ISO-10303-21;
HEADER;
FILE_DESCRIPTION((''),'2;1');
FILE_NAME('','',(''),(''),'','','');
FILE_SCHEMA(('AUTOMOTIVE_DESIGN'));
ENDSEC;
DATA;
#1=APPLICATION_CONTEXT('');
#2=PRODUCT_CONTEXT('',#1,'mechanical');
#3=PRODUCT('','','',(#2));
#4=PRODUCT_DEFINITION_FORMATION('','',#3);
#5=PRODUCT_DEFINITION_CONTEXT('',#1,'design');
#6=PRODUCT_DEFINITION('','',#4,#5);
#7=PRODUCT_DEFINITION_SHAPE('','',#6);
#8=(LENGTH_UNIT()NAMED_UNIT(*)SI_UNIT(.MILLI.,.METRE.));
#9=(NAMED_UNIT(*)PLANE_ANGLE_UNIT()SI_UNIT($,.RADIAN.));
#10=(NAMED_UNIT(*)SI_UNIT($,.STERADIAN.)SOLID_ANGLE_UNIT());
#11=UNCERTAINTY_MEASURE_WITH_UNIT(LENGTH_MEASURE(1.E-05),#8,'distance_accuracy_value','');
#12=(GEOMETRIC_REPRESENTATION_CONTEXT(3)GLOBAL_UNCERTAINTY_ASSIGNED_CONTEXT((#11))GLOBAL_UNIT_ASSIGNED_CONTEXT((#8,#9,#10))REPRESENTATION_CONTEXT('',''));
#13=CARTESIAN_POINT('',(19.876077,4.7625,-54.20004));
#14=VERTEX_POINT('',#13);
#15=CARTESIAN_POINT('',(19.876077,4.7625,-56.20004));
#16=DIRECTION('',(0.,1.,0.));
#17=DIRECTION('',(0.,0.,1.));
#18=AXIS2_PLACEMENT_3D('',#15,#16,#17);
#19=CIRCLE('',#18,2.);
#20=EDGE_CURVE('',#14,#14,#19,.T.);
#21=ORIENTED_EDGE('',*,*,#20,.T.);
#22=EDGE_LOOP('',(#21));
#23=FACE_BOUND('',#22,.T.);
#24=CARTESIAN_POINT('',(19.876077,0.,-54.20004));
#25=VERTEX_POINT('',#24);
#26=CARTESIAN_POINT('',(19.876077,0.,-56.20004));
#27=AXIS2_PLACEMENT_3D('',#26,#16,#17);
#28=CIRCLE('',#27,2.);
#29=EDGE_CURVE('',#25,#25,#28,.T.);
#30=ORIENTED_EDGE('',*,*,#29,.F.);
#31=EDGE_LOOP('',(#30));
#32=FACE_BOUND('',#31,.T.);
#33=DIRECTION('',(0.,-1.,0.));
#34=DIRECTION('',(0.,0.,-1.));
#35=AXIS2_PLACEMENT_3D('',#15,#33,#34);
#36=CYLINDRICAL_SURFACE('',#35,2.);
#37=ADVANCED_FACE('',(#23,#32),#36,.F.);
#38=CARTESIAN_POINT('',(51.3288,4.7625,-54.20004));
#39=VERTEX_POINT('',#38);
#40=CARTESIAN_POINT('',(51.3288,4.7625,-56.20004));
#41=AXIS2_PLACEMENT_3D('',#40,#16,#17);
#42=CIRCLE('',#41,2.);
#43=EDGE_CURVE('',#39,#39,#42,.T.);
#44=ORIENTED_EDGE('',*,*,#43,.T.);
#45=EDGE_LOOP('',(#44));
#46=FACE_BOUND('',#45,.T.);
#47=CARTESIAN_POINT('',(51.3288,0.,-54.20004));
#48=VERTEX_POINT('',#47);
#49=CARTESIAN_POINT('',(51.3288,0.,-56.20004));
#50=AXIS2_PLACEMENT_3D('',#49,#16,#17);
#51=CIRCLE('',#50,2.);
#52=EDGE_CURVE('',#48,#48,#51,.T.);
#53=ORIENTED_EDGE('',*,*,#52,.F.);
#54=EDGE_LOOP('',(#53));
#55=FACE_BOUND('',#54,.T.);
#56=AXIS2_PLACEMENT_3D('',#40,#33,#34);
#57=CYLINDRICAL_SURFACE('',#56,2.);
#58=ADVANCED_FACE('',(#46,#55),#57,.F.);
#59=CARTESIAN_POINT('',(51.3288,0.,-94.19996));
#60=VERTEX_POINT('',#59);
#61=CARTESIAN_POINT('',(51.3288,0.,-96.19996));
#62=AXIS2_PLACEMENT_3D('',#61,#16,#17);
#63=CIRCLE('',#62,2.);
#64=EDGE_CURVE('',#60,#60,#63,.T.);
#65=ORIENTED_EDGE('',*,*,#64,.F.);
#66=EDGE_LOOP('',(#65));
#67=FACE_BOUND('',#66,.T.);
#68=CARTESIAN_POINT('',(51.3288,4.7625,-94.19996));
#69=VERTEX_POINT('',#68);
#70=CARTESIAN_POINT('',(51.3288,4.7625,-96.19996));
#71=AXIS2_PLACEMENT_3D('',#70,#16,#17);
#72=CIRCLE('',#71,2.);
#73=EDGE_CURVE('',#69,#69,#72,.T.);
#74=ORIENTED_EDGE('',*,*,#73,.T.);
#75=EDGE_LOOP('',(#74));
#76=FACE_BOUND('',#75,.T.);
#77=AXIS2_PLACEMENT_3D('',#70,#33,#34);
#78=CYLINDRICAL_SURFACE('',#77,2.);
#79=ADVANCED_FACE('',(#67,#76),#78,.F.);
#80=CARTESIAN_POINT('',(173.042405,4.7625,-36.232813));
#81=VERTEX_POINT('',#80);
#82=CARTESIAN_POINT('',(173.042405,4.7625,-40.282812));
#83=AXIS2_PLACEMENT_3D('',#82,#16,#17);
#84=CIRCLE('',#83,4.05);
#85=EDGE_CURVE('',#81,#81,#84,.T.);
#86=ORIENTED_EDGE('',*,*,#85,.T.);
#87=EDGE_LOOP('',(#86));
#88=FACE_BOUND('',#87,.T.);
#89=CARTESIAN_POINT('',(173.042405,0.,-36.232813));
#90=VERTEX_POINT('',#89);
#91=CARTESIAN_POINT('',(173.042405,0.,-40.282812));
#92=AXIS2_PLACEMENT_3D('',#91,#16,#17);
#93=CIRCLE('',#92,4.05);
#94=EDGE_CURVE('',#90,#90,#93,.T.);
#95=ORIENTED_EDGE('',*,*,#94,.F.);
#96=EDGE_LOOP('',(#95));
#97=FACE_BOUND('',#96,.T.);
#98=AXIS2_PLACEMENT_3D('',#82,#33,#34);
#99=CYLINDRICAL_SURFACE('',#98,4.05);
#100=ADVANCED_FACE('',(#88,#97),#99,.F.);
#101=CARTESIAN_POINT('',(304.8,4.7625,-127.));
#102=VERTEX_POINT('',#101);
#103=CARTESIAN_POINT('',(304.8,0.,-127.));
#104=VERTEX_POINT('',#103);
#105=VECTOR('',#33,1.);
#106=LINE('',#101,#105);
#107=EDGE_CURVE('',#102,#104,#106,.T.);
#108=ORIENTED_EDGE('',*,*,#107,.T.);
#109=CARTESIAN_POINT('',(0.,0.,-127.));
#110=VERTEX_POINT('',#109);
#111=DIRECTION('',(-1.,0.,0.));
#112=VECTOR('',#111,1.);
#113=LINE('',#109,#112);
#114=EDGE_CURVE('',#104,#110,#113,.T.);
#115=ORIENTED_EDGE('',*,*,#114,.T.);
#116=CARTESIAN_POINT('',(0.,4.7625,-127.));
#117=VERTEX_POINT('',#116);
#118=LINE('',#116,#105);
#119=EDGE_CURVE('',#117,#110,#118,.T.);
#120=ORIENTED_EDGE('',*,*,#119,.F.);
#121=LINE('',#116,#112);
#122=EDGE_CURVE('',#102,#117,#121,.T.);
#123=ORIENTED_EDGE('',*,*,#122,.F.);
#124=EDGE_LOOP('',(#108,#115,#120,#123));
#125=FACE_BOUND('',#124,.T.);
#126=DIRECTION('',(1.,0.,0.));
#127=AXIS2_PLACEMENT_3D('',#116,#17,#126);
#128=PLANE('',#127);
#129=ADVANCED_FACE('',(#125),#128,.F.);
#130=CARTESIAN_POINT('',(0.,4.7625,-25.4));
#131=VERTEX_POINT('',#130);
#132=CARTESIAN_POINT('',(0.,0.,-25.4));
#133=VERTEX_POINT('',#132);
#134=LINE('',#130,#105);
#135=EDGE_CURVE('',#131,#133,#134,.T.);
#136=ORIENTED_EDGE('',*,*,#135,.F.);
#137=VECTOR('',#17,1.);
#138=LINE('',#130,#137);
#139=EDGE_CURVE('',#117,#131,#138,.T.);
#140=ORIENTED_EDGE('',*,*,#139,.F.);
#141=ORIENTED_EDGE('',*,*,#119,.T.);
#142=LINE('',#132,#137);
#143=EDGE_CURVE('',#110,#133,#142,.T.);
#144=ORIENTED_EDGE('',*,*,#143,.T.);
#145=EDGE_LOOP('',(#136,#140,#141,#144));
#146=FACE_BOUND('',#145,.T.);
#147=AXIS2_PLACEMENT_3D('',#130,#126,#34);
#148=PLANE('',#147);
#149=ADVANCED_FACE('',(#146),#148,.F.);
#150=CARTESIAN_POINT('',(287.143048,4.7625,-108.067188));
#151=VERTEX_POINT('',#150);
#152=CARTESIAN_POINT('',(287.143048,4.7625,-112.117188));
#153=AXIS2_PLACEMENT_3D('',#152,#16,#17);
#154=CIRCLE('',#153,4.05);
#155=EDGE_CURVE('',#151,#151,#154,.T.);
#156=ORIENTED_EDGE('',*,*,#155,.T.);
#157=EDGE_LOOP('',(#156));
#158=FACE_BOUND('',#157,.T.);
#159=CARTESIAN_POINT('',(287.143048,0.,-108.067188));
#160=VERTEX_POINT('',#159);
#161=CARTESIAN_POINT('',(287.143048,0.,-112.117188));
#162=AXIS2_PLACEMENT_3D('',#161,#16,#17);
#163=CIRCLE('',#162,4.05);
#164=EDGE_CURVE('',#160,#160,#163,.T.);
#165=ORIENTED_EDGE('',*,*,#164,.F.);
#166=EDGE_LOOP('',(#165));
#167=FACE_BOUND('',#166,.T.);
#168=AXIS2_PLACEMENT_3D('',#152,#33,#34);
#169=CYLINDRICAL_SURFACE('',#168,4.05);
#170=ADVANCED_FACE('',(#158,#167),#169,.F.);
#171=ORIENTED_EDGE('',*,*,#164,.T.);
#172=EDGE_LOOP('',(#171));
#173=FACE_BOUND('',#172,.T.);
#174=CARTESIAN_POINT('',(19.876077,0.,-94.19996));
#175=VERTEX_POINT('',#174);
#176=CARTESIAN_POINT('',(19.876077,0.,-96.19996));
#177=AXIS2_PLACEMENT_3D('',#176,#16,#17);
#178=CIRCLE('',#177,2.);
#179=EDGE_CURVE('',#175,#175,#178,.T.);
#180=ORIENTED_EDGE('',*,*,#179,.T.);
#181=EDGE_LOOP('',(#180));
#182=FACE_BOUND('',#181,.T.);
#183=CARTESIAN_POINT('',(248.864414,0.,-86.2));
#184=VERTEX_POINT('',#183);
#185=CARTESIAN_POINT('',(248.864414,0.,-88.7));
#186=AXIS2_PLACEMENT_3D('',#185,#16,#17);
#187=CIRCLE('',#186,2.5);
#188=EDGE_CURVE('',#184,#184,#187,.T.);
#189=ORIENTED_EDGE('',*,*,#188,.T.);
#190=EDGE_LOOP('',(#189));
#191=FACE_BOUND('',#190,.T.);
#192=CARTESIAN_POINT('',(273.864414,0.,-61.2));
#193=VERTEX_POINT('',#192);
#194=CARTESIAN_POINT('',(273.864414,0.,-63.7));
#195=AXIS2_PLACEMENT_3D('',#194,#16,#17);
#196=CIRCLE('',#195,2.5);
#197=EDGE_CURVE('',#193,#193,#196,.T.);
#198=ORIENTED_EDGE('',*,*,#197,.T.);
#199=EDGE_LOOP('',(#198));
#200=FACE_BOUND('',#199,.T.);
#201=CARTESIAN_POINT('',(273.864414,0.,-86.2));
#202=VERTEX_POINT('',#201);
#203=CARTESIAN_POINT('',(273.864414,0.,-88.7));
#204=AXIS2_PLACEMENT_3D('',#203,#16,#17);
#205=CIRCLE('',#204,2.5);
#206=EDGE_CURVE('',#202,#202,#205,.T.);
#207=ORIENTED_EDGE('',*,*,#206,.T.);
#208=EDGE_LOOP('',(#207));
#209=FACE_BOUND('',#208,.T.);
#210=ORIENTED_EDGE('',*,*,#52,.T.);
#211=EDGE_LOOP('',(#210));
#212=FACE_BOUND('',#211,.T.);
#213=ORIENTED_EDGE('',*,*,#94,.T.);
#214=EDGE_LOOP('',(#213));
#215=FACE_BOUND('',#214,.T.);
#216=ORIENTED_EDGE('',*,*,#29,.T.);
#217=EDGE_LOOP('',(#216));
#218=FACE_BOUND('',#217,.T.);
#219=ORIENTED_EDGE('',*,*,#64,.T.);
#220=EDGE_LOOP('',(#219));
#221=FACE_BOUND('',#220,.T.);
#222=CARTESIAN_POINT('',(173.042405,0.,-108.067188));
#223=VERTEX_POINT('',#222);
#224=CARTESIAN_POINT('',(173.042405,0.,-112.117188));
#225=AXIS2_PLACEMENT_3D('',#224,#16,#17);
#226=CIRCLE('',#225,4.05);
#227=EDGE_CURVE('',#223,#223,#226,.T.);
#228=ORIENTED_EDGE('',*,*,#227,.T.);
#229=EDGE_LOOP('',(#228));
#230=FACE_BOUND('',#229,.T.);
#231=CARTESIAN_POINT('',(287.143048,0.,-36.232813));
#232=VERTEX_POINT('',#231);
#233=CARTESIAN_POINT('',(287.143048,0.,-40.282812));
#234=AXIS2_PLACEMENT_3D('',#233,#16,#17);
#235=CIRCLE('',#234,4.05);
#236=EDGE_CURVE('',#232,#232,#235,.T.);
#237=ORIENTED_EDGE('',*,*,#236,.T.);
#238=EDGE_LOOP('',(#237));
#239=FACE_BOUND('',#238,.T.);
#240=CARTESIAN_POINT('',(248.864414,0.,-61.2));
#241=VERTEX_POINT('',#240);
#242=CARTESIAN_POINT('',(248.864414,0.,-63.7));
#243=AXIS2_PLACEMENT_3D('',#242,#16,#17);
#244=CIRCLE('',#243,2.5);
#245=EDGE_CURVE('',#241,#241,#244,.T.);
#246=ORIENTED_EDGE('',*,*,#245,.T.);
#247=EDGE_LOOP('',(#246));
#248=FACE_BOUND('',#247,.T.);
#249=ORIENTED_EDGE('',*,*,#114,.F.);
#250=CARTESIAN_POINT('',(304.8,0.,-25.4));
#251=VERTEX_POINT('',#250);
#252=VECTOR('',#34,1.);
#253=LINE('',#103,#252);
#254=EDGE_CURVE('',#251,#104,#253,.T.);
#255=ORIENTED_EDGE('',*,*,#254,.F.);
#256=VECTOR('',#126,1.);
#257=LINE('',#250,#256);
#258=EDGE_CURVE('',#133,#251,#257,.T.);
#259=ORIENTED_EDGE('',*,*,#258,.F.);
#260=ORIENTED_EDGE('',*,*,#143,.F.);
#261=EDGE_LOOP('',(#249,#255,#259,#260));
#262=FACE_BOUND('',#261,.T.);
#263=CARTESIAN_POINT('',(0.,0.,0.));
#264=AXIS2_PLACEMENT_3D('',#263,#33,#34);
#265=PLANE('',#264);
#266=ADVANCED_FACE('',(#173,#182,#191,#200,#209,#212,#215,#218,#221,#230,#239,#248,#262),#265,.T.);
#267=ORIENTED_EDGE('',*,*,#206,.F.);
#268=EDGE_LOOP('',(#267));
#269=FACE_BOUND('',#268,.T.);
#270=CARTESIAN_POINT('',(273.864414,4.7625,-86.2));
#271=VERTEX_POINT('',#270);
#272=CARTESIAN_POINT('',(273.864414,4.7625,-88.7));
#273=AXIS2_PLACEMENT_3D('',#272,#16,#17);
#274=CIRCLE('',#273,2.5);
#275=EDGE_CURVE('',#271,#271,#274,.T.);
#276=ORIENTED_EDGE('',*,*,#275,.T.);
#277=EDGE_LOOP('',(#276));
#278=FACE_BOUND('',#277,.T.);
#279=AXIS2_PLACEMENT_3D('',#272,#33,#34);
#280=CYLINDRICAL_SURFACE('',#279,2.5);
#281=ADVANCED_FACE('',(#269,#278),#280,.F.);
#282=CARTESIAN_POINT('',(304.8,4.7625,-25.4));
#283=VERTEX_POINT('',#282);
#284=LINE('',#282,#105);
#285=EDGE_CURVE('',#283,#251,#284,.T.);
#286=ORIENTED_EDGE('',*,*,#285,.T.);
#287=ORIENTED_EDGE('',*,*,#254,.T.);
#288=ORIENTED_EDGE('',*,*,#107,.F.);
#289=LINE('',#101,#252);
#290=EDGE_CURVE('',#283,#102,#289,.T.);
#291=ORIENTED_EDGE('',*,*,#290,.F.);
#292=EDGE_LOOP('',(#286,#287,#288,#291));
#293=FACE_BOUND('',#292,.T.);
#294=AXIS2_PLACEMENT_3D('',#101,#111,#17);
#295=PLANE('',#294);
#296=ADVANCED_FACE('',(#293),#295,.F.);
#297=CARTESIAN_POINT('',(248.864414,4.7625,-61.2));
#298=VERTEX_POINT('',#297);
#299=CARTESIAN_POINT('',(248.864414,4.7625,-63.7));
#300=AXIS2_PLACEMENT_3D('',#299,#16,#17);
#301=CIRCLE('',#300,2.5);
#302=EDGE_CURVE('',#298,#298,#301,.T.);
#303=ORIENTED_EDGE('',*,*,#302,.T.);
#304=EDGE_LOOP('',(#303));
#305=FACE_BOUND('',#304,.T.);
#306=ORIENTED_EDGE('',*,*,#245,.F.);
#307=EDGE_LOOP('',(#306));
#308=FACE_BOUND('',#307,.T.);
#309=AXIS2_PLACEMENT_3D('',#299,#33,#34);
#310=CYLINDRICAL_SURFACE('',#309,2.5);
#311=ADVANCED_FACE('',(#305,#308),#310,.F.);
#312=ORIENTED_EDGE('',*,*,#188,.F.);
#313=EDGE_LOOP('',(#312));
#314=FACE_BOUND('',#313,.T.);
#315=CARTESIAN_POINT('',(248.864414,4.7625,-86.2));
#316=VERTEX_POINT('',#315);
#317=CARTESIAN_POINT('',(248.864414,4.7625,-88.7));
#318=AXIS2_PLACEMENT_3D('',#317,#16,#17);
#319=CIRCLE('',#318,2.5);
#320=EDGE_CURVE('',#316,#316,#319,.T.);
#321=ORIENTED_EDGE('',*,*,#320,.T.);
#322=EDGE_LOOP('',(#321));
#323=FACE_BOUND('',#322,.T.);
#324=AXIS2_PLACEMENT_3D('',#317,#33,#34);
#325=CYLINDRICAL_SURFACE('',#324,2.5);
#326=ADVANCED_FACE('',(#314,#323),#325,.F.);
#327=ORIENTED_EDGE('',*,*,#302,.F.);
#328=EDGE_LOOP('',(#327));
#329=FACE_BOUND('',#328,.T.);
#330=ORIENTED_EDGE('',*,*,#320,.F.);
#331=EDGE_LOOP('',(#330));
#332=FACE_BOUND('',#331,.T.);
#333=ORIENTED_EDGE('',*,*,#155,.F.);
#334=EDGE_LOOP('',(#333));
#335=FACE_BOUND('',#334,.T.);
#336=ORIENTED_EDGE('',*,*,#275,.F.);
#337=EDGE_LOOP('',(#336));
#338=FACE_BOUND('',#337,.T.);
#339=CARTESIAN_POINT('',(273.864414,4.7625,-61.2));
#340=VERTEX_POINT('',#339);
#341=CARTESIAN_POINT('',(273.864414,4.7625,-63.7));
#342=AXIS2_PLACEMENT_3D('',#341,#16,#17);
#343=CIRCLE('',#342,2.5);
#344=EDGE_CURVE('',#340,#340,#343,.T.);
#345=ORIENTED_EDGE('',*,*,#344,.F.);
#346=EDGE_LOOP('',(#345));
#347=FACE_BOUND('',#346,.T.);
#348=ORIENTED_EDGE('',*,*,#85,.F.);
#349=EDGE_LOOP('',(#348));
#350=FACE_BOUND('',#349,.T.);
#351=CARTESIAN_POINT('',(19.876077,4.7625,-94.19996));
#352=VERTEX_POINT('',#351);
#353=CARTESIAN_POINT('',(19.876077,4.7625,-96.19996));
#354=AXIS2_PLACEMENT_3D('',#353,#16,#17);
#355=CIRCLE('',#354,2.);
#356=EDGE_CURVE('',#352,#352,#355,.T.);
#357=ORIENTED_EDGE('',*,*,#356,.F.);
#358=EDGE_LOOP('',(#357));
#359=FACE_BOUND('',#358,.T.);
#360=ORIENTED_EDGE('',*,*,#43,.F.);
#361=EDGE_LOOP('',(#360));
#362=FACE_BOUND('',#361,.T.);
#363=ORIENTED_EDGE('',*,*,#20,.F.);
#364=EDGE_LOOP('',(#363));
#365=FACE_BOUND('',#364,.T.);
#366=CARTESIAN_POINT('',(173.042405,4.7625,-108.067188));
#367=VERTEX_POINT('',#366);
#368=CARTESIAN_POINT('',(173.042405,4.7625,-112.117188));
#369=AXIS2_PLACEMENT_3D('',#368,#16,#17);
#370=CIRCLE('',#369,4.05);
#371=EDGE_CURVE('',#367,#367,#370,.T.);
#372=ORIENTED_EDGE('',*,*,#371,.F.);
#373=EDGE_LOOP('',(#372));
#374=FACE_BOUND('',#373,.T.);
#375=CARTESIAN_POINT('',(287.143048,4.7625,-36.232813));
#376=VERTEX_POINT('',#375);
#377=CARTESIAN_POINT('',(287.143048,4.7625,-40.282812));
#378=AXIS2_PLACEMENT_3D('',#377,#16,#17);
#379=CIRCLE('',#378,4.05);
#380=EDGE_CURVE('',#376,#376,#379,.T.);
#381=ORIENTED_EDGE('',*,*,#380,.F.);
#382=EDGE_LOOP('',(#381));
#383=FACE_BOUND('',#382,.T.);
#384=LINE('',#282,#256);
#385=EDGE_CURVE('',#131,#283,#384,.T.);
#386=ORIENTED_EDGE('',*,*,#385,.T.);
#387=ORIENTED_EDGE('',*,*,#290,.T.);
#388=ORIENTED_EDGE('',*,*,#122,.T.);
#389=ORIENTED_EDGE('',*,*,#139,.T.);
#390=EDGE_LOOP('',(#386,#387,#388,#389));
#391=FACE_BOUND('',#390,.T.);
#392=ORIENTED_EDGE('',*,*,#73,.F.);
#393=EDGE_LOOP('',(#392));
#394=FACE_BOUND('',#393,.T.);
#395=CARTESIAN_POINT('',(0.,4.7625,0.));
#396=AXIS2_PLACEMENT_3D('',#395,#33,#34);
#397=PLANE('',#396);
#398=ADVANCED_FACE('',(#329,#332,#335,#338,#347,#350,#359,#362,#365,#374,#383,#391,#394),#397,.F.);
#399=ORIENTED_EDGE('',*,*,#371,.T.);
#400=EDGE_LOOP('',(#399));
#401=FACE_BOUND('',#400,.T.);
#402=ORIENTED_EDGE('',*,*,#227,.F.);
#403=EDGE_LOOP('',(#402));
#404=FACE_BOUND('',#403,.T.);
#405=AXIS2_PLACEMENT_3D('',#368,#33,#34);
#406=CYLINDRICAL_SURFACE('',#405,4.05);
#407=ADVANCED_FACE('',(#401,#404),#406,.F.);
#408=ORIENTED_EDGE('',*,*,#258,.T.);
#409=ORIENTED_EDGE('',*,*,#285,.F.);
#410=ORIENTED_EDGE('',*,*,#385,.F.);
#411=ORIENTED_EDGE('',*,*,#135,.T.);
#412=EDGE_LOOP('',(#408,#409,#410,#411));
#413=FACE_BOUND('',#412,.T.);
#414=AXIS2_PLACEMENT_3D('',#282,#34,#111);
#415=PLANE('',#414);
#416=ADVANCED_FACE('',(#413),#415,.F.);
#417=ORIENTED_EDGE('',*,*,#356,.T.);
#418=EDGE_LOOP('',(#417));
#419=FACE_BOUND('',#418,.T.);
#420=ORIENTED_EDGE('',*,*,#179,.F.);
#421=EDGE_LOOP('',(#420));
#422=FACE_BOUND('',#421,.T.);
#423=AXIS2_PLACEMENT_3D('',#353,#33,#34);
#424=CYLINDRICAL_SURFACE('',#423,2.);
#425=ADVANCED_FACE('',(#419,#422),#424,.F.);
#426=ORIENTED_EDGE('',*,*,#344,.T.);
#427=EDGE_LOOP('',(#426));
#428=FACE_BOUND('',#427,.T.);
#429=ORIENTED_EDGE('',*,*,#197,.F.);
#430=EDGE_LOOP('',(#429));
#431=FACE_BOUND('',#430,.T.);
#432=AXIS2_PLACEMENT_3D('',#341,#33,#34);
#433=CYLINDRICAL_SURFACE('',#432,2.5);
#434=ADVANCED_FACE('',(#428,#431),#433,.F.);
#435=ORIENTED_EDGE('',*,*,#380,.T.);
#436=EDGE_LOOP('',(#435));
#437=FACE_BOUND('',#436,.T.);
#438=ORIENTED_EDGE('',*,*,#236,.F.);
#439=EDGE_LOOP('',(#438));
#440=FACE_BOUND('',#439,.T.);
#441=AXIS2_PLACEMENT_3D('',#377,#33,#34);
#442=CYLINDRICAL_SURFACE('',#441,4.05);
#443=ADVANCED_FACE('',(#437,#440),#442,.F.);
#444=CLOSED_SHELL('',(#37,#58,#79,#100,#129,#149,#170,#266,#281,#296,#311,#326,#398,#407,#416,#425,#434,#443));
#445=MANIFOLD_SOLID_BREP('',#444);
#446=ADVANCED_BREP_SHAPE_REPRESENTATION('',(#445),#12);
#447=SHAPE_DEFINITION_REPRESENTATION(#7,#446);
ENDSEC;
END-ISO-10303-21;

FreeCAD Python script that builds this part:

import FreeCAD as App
import Part
import Sketcher
from FreeCAD import Vector


def add_polygon(sketch, points):
    """Adds a closed chain of lines whose ends are joined by coincident constraints."""
    first, n = sketch.GeometryCount, len(points)
    for a, b in zip(points, points[1:] + points[:1]):
        sketch.addGeometry(Part.LineSegment(App.Vector(*a, 0), App.Vector(*b, 0)), False)
    for i in range(n):
        sketch.addConstraint(Sketcher.Constraint("Coincident", first + i, 2, first + (i + 1) % n, 1))

doc = App.newDocument("Part")
body = doc.addObject("PartDesign::Body", "Body")

# Sketch on XZ plane
sketch1 = body.newObject("Sketcher::SketchObject", "Sketch")
sketch1.AttachmentSupport = (doc.getObject("XZ_Plane"), [""])
sketch1.MapMode = "FlatFace"
add_polygon(sketch1, [(0, -127), (0, -25.4), (304.8, -25.4), (304.8, -127)])  # lines 0-3
sketch1.addGeometry(Part.Circle(Vector(19.9, -56.2, 0), Vector(0, 0, 1), 2), False)  # 4
sketch1.addGeometry(Part.Circle(Vector(51.3, -56.2, 0), Vector(0, 0, 1), 2), False)  # 5
sketch1.addGeometry(Part.Circle(Vector(173, -40.3, 0), Vector(0, 0, 1), 4), False)  # 6
sketch1.addGeometry(Part.Circle(Vector(287.1, -40.3, 0), Vector(0, 0, 1), 4), False)  # 7
sketch1.addGeometry(Part.Circle(Vector(248.9, -63.7, 0), Vector(0, 0, 1), 2.5), False)  # 8
sketch1.addGeometry(Part.Circle(Vector(273.9, -63.7, 0), Vector(0, 0, 1), 2.5), False)  # 9
sketch1.addGeometry(Part.Circle(Vector(19.9, -96.2, 0), Vector(0, 0, 1), 2), False)  # 10
sketch1.addGeometry(Part.Circle(Vector(51.3, -96.2, 0), Vector(0, 0, 1), 2), False)  # 11
sketch1.addGeometry(Part.Circle(Vector(248.9, -88.7, 0), Vector(0, 0, 1), 2.5), False)  # 12
sketch1.addGeometry(Part.Circle(Vector(273.9, -88.7, 0), Vector(0, 0, 1), 2.5), False)  # 13
sketch1.addGeometry(Part.Circle(Vector(173, -112.1, 0), Vector(0, 0, 1), 4), False)  # 14
sketch1.addGeometry(Part.Circle(Vector(287.1, -112.1, 0), Vector(0, 0, 1), 4), False)  # 15
sketch1.addConstraint([
    Sketcher.Constraint("Vertical", 0),
    Sketcher.Constraint("Horizontal", 1),
    Sketcher.Constraint("Vertical", 2),
    Sketcher.Constraint("Horizontal", 3),
    Sketcher.Constraint("Equal", 4, 5),
    Sketcher.Constraint("Equal", 6, 7),
    Sketcher.Constraint("Equal", 8, 9),
    Sketcher.Constraint("Equal", 5, 10),
    Sketcher.Constraint("Equal", 10, 11),
    Sketcher.Constraint("Equal", 9, 12),
    Sketcher.Constraint("Equal", 12, 13),
    Sketcher.Constraint("Equal", 7, 14),
    Sketcher.Constraint("Equal", 14, 15),
    Sketcher.Constraint("PointOnObject", 0, 2, -2),
    Sketcher.Constraint("Horizontal", 4, 3, 5, 3),
    Sketcher.Constraint("Horizontal", 6, 3, 7, 3),
    Sketcher.Constraint("Horizontal", 8, 3, 9, 3),
    Sketcher.Constraint("Horizontal", 10, 3, 11, 3),
    Sketcher.Constraint("Horizontal", 12, 3, 13, 3),
    Sketcher.Constraint("Horizontal", 14, 3, 15, 3),
    Sketcher.Constraint("Vertical", 4, 3, 10, 3),
    Sketcher.Constraint("Vertical", 5, 3, 11, 3),
    Sketcher.Constraint("Vertical", 8, 3, 12, 3),
    Sketcher.Constraint("Vertical", 9, 3, 13, 3),
    Sketcher.Constraint("Vertical", 6, 3, 14, 3),
    Sketcher.Constraint("Vertical", 7, 3, 15, 3),
    Sketcher.Constraint("Diameter", 4, 4.0),
    Sketcher.Constraint("Diameter", 8, 5.0),
    Sketcher.Constraint("Diameter", 6, 8.1),
    Sketcher.Constraint("DistanceX", 1, 1, 1, 2, 304.8),
    Sketcher.Constraint("DistanceY", 0, 1, 0, 2, 101.6),
    Sketcher.Constraint("DistanceY", 2, 2, -1, 1, 127.0),
    Sketcher.Constraint("DistanceX", 8, 3, 9, 3, 25.0),
    Sketcher.Constraint("DistanceY", 12, 3, 8, 3, 25.0),
    Sketcher.Constraint("DistanceY", 8, 3, -1, 1, 63.7),
    Sketcher.Constraint("DistanceX", -1, 1, 5, 3, 51.3288),
    Sketcher.Constraint("DistanceY", 4, 3, -1, 1, 56.20004),
    Sketcher.Constraint("DistanceX", -1, 1, 7, 3, 287.143048),
    Sketcher.Constraint("DistanceY", 10, 3, -1, 1, 96.19996),
    Sketcher.Constraint("DistanceX", 4, 3, 6, 3, 153.166328),
    Sketcher.Constraint("DistanceX", 4, 3, 7, 3, 267.266972),
    Sketcher.Constraint("DistanceX", 6, 3, 8, 3, 75.822009),
    Sketcher.Constraint("DistanceY", 6, 3, -1, 1, 40.282812),
    Sketcher.Constraint("DistanceY", 14, 3, -1, 1, 112.117188),
])
pad1 = body.newObject("PartDesign::Pad", "Pad")
pad1.Profile = sketch1
pad1.Length = 4.7625
pad1.Reversed = True

doc.recompute()
